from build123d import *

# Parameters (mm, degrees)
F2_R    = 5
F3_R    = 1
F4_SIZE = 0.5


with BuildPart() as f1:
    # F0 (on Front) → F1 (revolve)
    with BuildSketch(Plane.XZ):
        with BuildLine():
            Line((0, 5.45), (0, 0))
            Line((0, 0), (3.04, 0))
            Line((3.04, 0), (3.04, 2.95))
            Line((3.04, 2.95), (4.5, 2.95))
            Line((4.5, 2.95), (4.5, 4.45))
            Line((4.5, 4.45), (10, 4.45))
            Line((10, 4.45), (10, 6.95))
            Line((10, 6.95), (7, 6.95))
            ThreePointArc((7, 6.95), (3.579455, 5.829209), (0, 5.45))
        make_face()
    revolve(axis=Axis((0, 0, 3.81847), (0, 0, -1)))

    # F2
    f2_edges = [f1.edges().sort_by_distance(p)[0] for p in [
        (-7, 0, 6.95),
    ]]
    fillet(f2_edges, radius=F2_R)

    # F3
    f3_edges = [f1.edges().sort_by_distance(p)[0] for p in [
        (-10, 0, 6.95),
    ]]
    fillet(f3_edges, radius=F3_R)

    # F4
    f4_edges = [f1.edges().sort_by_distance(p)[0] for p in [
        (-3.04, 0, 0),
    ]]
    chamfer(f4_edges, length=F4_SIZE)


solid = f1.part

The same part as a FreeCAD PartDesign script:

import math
import FreeCAD as App
import Part
import Sketcher
from FreeCAD import Vector
Q = App.Units.Quantity


def edges_at(feature, points):
    """Names of the edges that pass closest to the given points."""
    edges = feature.Shape.Edges
    near = lambda p: min(range(len(edges)), key=lambda i: edges[i].distToShape(Part.Vertex(*p))[0])
    return sorted({f"Edge{near(p) + 1}" for p in points})

doc = App.newDocument("Part")
params = doc.addObject("Spreadsheet::Sheet", "Params")
for row, (alias, value) in enumerate([
    ("sketch1_width", "3 mm"),
    ("sketch1_width2", "5.5 mm"),
    ("sketch1_height", "1.5 mm"),
    ("sketch1_height2", "2.5 mm"),
    ("sketch1_width3", "3.04 mm"),
    ("revolution_angle", "360 deg"),
    ("fillet_radius", "5 mm"),
    ("fillet2_radius", "1 mm"),
    ("chamfer_size", "0.5 mm"),
], start=1):
    params.set(f"A{row}", alias)
    params.set(f"B{row}", "=" + value)
    params.setAlias(f"B{row}", alias)

body = doc.addObject("PartDesign::Body", "Body")

# Sketch on XZ plane
sketch1 = body.newObject("Sketcher::SketchObject", "Sketch")
sketch1.AttachmentSupport = (doc.getObject("XZ_Plane"), [""])
sketch1.MapMode = "FlatFace"
sketch1.addGeometry([
    Part.LineSegment(Vector(0, 5.5, 0), Vector(0, 0, 0)),  # 0
    Part.LineSegment(Vector(0, 0, 0), Vector(3, 0, 0)),  # 1
    Part.LineSegment(Vector(3, 0, 0), Vector(3, 3, 0)),  # 2
    Part.LineSegment(Vector(3, 3, 0), Vector(4.5, 3, 0)),  # 3
    Part.LineSegment(Vector(4.5, 3, 0), Vector(4.5, 4.5, 0)),  # 4
    Part.LineSegment(Vector(4.5, 4.5, 0), Vector(10, 4.5, 0)),  # 5
    Part.LineSegment(Vector(10, 4.5, 0), Vector(10, 7, 0)),  # 6
    Part.LineSegment(Vector(10, 7, 0), Vector(7, 7, 0)),  # 7
    Part.ArcOfCircle(Part.Circle(Vector(0, 22.5, 0), Vector(0, 0, 1), 17.1), math.radians(-90), math.radians(-66)),  # 8
], False)
sketch1.addConstraint([
    Sketcher.Constraint("Coincident", 0, 2, 1, 1),
    Sketcher.Constraint("Coincident", 1, 2, 2, 1),
    Sketcher.Constraint("Coincident", 2, 2, 3, 1),
    Sketcher.Constraint("Coincident", 3, 2, 4, 1),
    Sketcher.Constraint("Coincident", 4, 2, 5, 1),
    Sketcher.Constraint("Coincident", 5, 2, 6, 1),
    Sketcher.Constraint("Coincident", 6, 2, 7, 1),
    Sketcher.Constraint("Coincident", 7, 2, 8, 2),
    Sketcher.Constraint("Coincident", 8, 1, 0, 1),
    Sketcher.Constraint("Vertical", 0),
    Sketcher.Constraint("Horizontal", 1),
    Sketcher.Constraint("Vertical", 2),
    Sketcher.Constraint("Horizontal", 3),
    Sketcher.Constraint("Vertical", 4),
    Sketcher.Constraint("Horizontal", 5),
    Sketcher.Constraint("Vertical", 6),
    Sketcher.Constraint("Horizontal", 7),
    Sketcher.Constraint("Coincident", 0, 2, -1, 1),
    Sketcher.Constraint("DistanceX", 7, 2, 7, 1, Q("3 mm")),
    Sketcher.Constraint("DistanceX", 5, 1, 5, 2, Q("5.5 mm")),
    Sketcher.Constraint("DistanceY", 4, 1, 4, 2, Q("1.5 mm")),
    Sketcher.Constraint("DistanceY", 6, 1, 6, 2, Q("2.5 mm")),
    Sketcher.Constraint("DistanceX", -1, 1, 5, 2, Q("10 mm")),
    Sketcher.Constraint("DistanceY", 4, 2, 8, 1, Q("1 mm")),
    Sketcher.Constraint("DistanceX", 1, 1, 1, 2, Q("3.04 mm")),
    Sketcher.Constraint("DistanceY", 0, 2, 0, 1, Q("5.45 mm")),
    Sketcher.Constraint("Radius", 8, Q("17.083346 mm")),
])
sketch1.setExpression("Constraints[18]", "Params.sketch1_width")
sketch1.setExpression("Constraints[19]", "Params.sketch1_width2")
sketch1.setExpression("Constraints[20]", "Params.sketch1_height")
sketch1.setExpression("Constraints[21]", "Params.sketch1_height2")
sketch1.setExpression("Constraints[24]", "Params.sketch1_width3")
revolution = body.newObject("PartDesign::Revolution", "Revolution")
revolution.Profile = sketch1
revolution.ReferenceAxis = (sketch1, ["V_Axis"])
revolution.setExpression("Angle", "Params.revolution_angle")
doc.recompute()

fillet = body.newObject("PartDesign::Fillet", "Fillet")
fillet.Base = (revolution, edges_at(revolution, [(-7, 0, 6.95)]))
fillet.setExpression("Radius", "Params.fillet_radius")
doc.recompute()

fillet2 = body.newObject("PartDesign::Fillet", "Fillet001")
fillet2.Base = (fillet, edges_at(fillet, [(-10, 0, 6.95)]))
fillet2.setExpression("Radius", "Params.fillet2_radius")
doc.recompute()

chamfer = body.newObject("PartDesign::Chamfer", "Chamfer")
chamfer.Base = (fillet2, edges_at(fillet2, [(-3.04, 0, 0)]))
chamfer.setExpression("Size", "Params.chamfer_size")

doc.recompute()
